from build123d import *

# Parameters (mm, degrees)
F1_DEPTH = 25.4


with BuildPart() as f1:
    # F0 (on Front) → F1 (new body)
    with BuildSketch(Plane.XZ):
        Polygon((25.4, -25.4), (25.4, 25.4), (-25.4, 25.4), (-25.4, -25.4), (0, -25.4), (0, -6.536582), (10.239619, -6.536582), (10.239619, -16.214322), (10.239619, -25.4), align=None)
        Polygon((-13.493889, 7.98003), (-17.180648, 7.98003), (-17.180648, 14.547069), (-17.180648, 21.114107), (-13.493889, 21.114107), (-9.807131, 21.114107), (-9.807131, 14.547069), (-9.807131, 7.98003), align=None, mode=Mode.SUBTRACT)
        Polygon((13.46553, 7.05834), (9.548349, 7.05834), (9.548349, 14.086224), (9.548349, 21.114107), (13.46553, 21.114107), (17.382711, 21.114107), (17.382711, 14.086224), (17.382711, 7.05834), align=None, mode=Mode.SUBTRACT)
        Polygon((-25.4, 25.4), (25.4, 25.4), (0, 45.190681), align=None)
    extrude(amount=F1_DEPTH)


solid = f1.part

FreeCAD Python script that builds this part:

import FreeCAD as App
import Part
import Sketcher

V = App.Vector
Q = App.Units.Quantity


def add_polygon(sketch, points):
    """Adds a closed chain of lines whose ends are joined by coincident constraints."""
    first, n = sketch.GeometryCount, len(points)
    for a, b in zip(points, points[1:] + points[:1]):
        sketch.addGeometry(Part.LineSegment(App.Vector(*a, 0), App.Vector(*b, 0)), False)
    for i in range(n):
        sketch.addConstraint(Sketcher.Constraint("Coincident", first + i, 2, first + (i + 1) % n, 1))

doc = App.newDocument("Part")
body = doc.addObject("PartDesign::Body", "Body")

sketch1 = doc.addObject("Sketcher::SketchObject", "Sketch")
body.addObject(sketch1)
sketch1.AttachmentSupport = (doc.XZ_Plane, [""])
sketch1.MapMode = "FlatFace"
add_polygon(sketch1, [(25, -25), (25, 25), (0, 45), (-25, 25), (-25, -25), (0, -25), (0, -7), (10, -7), (10, -25)])
add_polygon(sketch1, [(-10, 8), (-17, 8), (-17, 21), (-10, 21)])
add_polygon(sketch1, [(17, 7), (10, 7), (10, 21), (17, 21)])
sketch1.addConstraint(Sketcher.Constraint("Vertical", 0))
sketch1.addConstraint(Sketcher.Constraint("Vertical", 3))
sketch1.addConstraint(Sketcher.Constraint("Horizontal", 4))
sketch1.addConstraint(Sketcher.Constraint("Vertical", 5))
sketch1.addConstraint(Sketcher.Constraint("Horizontal", 6))
sketch1.addConstraint(Sketcher.Constraint("Vertical", 7))
sketch1.addConstraint(Sketcher.Constraint("Horizontal", 8))
sketch1.addConstraint(Sketcher.Constraint("Horizontal", 9))
sketch1.addConstraint(Sketcher.Constraint("Vertical", 10))
sketch1.addConstraint(Sketcher.Constraint("Horizontal", 11))
sketch1.addConstraint(Sketcher.Constraint("Vertical", 12))
sketch1.addConstraint(Sketcher.Constraint("Horizontal", 13))
sketch1.addConstraint(Sketcher.Constraint("Vertical", 14))
sketch1.addConstraint(Sketcher.Constraint("Horizontal", 15))
sketch1.addConstraint(Sketcher.Constraint("Vertical", 16))
sketch1.addConstraint(Sketcher.Constraint("Symmetric", 0, 2, 3, 2, -1, 1))
sketch1.addConstraint(Sketcher.Constraint("PointOnObject", 1, 2, -2))
sketch1.addConstraint(Sketcher.Constraint("PointOnObject", 4, 2, -2))
sketch1.addConstraint(Sketcher.Constraint("Horizontal", 0, 2, 2, 2))
sketch1.addConstraint(Sketcher.Constraint("Horizontal", 4, 2, 7, 2))
sketch1.addConstraint(Sketcher.Constraint("Horizontal", 11, 2, 14, 2))
sketch1.addConstraint(Sketcher.Constraint("DistanceX", 4, 1, 4, 2, Q("1 in")))
sketch1.addConstraint(Sketcher.Constraint("DistanceY", 0, 1, 0, 2, Q("2 in")))
sketch1.addConstraint(Sketcher.Constraint("DistanceX", 6, 1, 6, 2, 10.239619))
sketch1.addConstraint(Sketcher.Constraint("Distance", 1, 32.199861))
sketch1.addConstraint(Sketcher.Constraint("DistanceX", 9, 2, 9, 1, 7.373517))
sketch1.addConstraint(Sketcher.Constraint("DistanceX", 13, 2, 13, 1, 7.834362))
sketch1.addConstraint(Sketcher.Constraint("DistanceY", 5, 1, 5, 2, 18.863418))
sketch1.addConstraint(Sketcher.Constraint("DistanceY", 10, 1, 10, 2, 13.134077))
sketch1.addConstraint(Sketcher.Constraint("DistanceY", 14, 1, 14, 2, 14.055767))
sketch1.addConstraint(Sketcher.Constraint("DistanceX", 9, 2, -1, 1, 17.180648))
sketch1.addConstraint(Sketcher.Constraint("DistanceY", -1, 1, 9, 2, 7.98003))
sketch1.addConstraint(Sketcher.Constraint("DistanceX", -1, 1, 13, 2, 9.548349))
pad1 = doc.addObject("PartDesign::Pad", "Pad")
body.addObject(pad1)
pad1.Profile = sketch1
pad1.Length = Q("1 in")

doc.recompute()
